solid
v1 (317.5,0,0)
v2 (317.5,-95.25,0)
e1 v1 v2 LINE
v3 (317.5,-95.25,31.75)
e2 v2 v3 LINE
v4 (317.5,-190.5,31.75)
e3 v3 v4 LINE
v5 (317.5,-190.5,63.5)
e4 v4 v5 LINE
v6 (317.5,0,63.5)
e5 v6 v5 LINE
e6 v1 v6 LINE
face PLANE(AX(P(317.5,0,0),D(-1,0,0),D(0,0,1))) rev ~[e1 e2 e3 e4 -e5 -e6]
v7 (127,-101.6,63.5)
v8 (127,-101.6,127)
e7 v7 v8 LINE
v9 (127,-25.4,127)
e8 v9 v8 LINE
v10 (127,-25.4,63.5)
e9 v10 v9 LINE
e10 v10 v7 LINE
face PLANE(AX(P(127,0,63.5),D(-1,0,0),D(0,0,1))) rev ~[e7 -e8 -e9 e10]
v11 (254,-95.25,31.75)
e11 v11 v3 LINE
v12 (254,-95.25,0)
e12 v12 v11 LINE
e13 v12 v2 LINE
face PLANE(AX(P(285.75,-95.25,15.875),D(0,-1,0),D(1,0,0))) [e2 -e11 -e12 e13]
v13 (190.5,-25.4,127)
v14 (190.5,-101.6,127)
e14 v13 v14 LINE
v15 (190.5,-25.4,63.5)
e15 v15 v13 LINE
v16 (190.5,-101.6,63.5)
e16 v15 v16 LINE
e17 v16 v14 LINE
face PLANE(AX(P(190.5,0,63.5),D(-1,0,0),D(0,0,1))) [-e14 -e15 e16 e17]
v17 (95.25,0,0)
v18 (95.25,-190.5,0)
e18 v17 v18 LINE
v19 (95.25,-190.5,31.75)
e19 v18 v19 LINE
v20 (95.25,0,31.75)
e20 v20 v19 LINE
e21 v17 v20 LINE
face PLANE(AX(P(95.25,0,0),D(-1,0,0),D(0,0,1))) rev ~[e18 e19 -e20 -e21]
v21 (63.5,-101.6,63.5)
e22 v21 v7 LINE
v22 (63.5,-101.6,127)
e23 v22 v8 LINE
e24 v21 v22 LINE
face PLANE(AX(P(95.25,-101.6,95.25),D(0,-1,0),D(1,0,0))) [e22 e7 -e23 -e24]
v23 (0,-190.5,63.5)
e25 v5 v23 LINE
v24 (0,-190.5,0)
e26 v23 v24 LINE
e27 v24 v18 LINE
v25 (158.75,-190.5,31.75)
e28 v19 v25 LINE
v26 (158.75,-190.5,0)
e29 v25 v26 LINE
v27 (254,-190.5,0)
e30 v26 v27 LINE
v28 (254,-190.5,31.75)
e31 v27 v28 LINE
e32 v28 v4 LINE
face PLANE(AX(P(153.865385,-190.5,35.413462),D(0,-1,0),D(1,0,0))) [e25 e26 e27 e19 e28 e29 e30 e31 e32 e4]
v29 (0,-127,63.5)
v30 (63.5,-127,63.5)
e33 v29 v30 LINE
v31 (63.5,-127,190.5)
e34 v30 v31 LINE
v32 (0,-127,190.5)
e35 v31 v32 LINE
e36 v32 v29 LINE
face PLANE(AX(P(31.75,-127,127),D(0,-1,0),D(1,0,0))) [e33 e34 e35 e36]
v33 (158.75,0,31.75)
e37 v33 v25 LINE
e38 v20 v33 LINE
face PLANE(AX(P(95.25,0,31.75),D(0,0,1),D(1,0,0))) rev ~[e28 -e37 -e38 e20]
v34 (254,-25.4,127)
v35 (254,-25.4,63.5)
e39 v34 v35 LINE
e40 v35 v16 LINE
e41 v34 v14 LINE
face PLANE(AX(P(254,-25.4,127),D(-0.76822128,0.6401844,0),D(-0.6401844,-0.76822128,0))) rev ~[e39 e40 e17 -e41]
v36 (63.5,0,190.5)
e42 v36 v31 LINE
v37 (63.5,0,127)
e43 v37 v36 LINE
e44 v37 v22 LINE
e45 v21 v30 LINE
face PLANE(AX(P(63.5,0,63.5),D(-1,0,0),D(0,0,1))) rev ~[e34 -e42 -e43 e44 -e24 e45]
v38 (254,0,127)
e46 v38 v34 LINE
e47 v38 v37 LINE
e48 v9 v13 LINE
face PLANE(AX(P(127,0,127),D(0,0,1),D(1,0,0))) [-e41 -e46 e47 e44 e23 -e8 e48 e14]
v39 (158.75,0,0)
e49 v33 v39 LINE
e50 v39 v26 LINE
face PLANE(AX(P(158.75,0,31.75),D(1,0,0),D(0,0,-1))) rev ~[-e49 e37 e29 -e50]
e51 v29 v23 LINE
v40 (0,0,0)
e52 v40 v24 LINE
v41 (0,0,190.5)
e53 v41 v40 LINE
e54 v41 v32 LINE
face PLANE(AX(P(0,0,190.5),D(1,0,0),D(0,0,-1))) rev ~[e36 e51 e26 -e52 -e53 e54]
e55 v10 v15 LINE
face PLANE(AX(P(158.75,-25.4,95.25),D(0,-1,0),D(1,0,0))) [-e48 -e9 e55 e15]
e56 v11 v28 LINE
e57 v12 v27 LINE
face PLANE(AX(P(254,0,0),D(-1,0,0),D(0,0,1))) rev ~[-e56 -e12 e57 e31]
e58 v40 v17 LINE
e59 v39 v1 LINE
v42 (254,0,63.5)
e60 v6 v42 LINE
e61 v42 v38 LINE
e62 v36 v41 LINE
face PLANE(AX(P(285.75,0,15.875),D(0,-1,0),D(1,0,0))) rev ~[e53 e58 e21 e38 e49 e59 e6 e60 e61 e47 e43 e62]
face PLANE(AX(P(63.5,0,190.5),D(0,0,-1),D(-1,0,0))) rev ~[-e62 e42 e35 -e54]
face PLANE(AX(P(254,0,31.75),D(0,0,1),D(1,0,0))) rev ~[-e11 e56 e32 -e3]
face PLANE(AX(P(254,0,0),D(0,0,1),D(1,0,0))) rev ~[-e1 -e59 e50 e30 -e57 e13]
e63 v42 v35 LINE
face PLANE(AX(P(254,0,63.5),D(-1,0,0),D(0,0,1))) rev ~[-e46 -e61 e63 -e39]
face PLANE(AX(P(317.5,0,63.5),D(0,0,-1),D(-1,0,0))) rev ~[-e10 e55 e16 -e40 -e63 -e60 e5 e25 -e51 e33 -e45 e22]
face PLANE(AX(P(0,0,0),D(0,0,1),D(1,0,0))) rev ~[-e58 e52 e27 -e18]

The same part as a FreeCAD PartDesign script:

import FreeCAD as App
import Part
import Sketcher
from FreeCAD import Vector
Q = App.Units.Quantity

doc = App.newDocument("Part")
body = doc.addObject("PartDesign::Body", "Body")

# Sketch on XZ plane
sketch1 = body.newObject("Sketcher::SketchObject", "Sketch")
sketch1.AttachmentSupport = (doc.getObject("XZ_Plane"), [""])
sketch1.MapMode = "FlatFace"
sketch1.addGeometry(Part.LineSegment(Vector(0, 64, 0), Vector(0, 0, 0)), False)
sketch1.addGeometry(Part.LineSegment(Vector(0, 0, 0), Vector(95, 0, 0)), False)
sketch1.addGeometry(Part.LineSegment(Vector(95, 0, 0), Vector(95, 32, 0)), False)
sketch1.addGeometry(Part.LineSegment(Vector(95, 32, 0), Vector(159, 32, 0)), False)
sketch1.addGeometry(Part.LineSegment(Vector(159, 32, 0), Vector(159, 0, 0)), False)
sketch1.addGeometry(Part.LineSegment(Vector(159, 0, 0), Vector(254, 0, 0)), False)
sketch1.addGeometry(Part.LineSegment(Vector(254, 0, 0), Vector(254, 32, 0)), False)
sketch1.addGeometry(Part.LineSegment(Vector(254, 32, 0), Vector(318, 32, 0)), False)
sketch1.addGeometry(Part.LineSegment(Vector(318, 32, 0), Vector(318, 64, 0)), False)
sketch1.addGeometry(Part.LineSegment(Vector(318, 64, 0), Vector(0, 64, 0)), False)
sketch1.addConstraint(Sketcher.Constraint("Coincident", 0, 2, 1, 1))
sketch1.addConstraint(Sketcher.Constraint("Coincident", 1, 2, 2, 1))
sketch1.addConstraint(Sketcher.Constraint("Coincident", 2, 2, 3, 1))
sketch1.addConstraint(Sketcher.Constraint("Coincident", 3, 2, 4, 1))
sketch1.addConstraint(Sketcher.Constraint("Coincident", 4, 2, 5, 1))
sketch1.addConstraint(Sketcher.Constraint("Coincident", 5, 2, 6, 1))
sketch1.addConstraint(Sketcher.Constraint("Coincident", 6, 2, 7, 1))
sketch1.addConstraint(Sketcher.Constraint("Coincident", 7, 2, 8, 1))
sketch1.addConstraint(Sketcher.Constraint("Coincident", 8, 2, 9, 1))
sketch1.addConstraint(Sketcher.Constraint("Coincident", 9, 2, 0, 1))
sketch1.addConstraint(Sketcher.Constraint("Vertical", 0))
sketch1.addConstraint(Sketcher.Constraint("Horizontal", 1))
sketch1.addConstraint(Sketcher.Constraint("Vertical", 2))
sketch1.addConstraint(Sketcher.Constraint("Horizontal", 3))
sketch1.addConstraint(Sketcher.Constraint("Vertical", 4))
sketch1.addConstraint(Sketcher.Constraint("Horizontal", 5))
sketch1.addConstraint(Sketcher.Constraint("Vertical", 6))
sketch1.addConstraint(Sketcher.Constraint("Horizontal", 7))
sketch1.addConstraint(Sketcher.Constraint("Vertical", 8))
sketch1.addConstraint(Sketcher.Constraint("Horizontal", 9))
sketch1.addConstraint(Sketcher.Constraint("Coincident", 0, 2, -1, 1))
sketch1.addConstraint(Sketcher.Constraint("PointOnObject", 4, 2, -1))
sketch1.addConstraint(Sketcher.Constraint("Horizontal", 3, 2, 6, 2))
sketch1.addConstraint(Sketcher.Constraint("Equal", 1, 5))
sketch1.addConstraint(Sketcher.Constraint("Equal", 3, 7))
sketch1.addConstraint(Sketcher.Constraint("Equal", 7, 0))
sketch1.addConstraint(Sketcher.Constraint("Equal", 6, 8))
sketch1.addConstraint(Sketcher.Constraint("DistanceX", 3, 1, 3, 2, Q("2.5 in")))
sketch1.addConstraint(Sketcher.Constraint("DistanceX", 9, 2, 9, 1, Q("12.5 in")))
pad1 = body.newObject("PartDesign::Pad", "Pad")
pad1.Profile = sketch1
pad1.Length = Q("7.5 in")

# Sketch on XZ plane
sketch2 = body.newObject("Sketcher::SketchObject", "Sketch001")
sketch2.AttachmentSupport = (doc.getObject("XZ_Plane"), [""])
sketch2.MapMode = "FlatFace"
sketch2.addGeometry(Part.LineSegment(Vector(0, 190, 0), Vector(0, 64, 0)), False)
sketch2.addGeometry(Part.LineSegment(Vector(0, 64, 0), Vector(64, 64, 0)), False)
sketch2.addGeometry(Part.LineSegment(Vector(64, 64, 0), Vector(64, 190, 0)), False)
sketch2.addGeometry(Part.LineSegment(Vector(64, 190, 0), Vector(0, 190, 0)), False)
sketch2.addConstraint(Sketcher.Constraint("Coincident", 0, 2, 1, 1))
sketch2.addConstraint(Sketcher.Constraint("Coincident", 1, 2, 2, 1))
sketch2.addConstraint(Sketcher.Constraint("Coincident", 2, 2, 3, 1))
sketch2.addConstraint(Sketcher.Constraint("Coincident", 3, 2, 0, 1))
sketch2.addConstraint(Sketcher.Constraint("Vertical", 0))
sketch2.addConstraint(Sketcher.Constraint("Horizontal", 1))
sketch2.addConstraint(Sketcher.Constraint("Vertical", 2))
sketch2.addConstraint(Sketcher.Constraint("Horizontal", 3))
sketch2.addConstraint(Sketcher.Constraint("PointOnObject", 0, 2, -2))
sketch2.addConstraint(Sketcher.Constraint("DistanceY", 0, 2, 0, 1, Q("5 in")))
sketch2.addConstraint(Sketcher.Constraint("DistanceX", 1, 1, 1, 2, Q("2.5 in")))
sketch2.addConstraint(Sketcher.Constraint("DistanceY", -1, 1, 0, 2, Q("2.5 in")))
pad2 = body.newObject("PartDesign::Pad", "Pad001")
pad2.Profile = sketch2
pad2.Length = Q("5 in")

# Sketch on XZ plane
sketch3 = body.newObject("Sketcher::SketchObject", "Sketch002")
sketch3.AttachmentSupport = (doc.getObject("XZ_Plane"), [""])
sketch3.MapMode = "FlatFace"
sketch3.addGeometry(Part.LineSegment(Vector(64, 127, 0), Vector(64, 64, 0)), False)
sketch3.addGeometry(Part.LineSegment(Vector(64, 64, 0), Vector(127, 64, 0)), False)
sketch3.addGeometry(Part.LineSegment(Vector(127, 64, 0), Vector(127, 127, 0)), False)
sketch3.addGeometry(Part.LineSegment(Vector(127, 127, 0), Vector(64, 127, 0)), False)
sketch3.addGeometry(Part.LineSegment(Vector(190, 127, 0), Vector(190, 64, 0)), False)
sketch3.addGeometry(Part.LineSegment(Vector(190, 64, 0), Vector(254, 64, 0)), False)
sketch3.addGeometry(Part.LineSegment(Vector(254, 64, 0), Vector(254, 127, 0)), False)
sketch3.addGeometry(Part.LineSegment(Vector(254, 127, 0), Vector(190, 127, 0)), False)
sketch3.addConstraint(Sketcher.Constraint("Coincident", 0, 2, 1, 1))
sketch3.addConstraint(Sketcher.Constraint("Coincident", 1, 2, 2, 1))
sketch3.addConstraint(Sketcher.Constraint("Coincident", 2, 2, 3, 1))
sketch3.addConstraint(Sketcher.Constraint("Coincident", 3, 2, 0, 1))
sketch3.addConstraint(Sketcher.Constraint("Coincident", 4, 2, 5, 1))
sketch3.addConstraint(Sketcher.Constraint("Coincident", 5, 2, 6, 1))
sketch3.addConstraint(Sketcher.Constraint("Coincident", 6, 2, 7, 1))
sketch3.addConstraint(Sketcher.Constraint("Coincident", 7, 2, 4, 1))
sketch3.addConstraint(Sketcher.Constraint("Vertical", 0))
sketch3.addConstraint(Sketcher.Constraint("Horizontal", 1))
sketch3.addConstraint(Sketcher.Constraint("Vertical", 2))
sketch3.addConstraint(Sketcher.Constraint("Horizontal", 3))
sketch3.addConstraint(Sketcher.Constraint("Vertical", 4))
sketch3.addConstraint(Sketcher.Constraint("Horizontal", 5))
sketch3.addConstraint(Sketcher.Constraint("Vertical", 6))
sketch3.addConstraint(Sketcher.Constraint("Horizontal", 7))
sketch3.addConstraint(Sketcher.Constraint("Horizontal", 1, 2, 4, 2))
sketch3.addConstraint(Sketcher.Constraint("Horizontal", 3, 2, 6, 2))
sketch3.addConstraint(Sketcher.Constraint("Equal", 3, 5))
sketch3.addConstraint(Sketcher.Constraint("Equal", 7, 0))
sketch3.addConstraint(Sketcher.Constraint("DistanceX", 1, 1, 1, 2, Q("2.5 in")))
sketch3.addConstraint(Sketcher.Constraint("DistanceX", -1, 1, 1, 2, Q("5 in")))
sketch3.addConstraint(Sketcher.Constraint("DistanceY", -1, 1, 2, 2, Q("5 in")))
sketch3.addConstraint(Sketcher.Constraint("DistanceX", -1, 1, 5, 2, Q("10 in")))
pad3 = body.newObject("PartDesign::Pad", "Pad002")
pad3.Profile = sketch3
pad3.Length = Q("4 in")

# Sketch on XZ plane
sketch4 = body.newObject("Sketcher::SketchObject", "Sketch003")
sketch4.AttachmentSupport = (doc.getObject("XZ_Plane"), [""])
sketch4.MapMode = "FlatFace"
sketch4.addGeometry(Part.LineSegment(Vector(127, 127, 0), Vector(127, 64, 0)), False)
sketch4.addGeometry(Part.LineSegment(Vector(127, 64, 0), Vector(190, 64, 0)), False)
sketch4.addGeometry(Part.LineSegment(Vector(190, 64, 0), Vector(190, 127, 0)), False)
sketch4.addGeometry(Part.LineSegment(Vector(190, 127, 0), Vector(127, 127, 0)), False)
sketch4.addConstraint(Sketcher.Constraint("Coincident", 0, 2, 1, 1))
sketch4.addConstraint(Sketcher.Constraint("Coincident", 1, 2, 2, 1))
sketch4.addConstraint(Sketcher.Constraint("Coincident", 2, 2, 3, 1))
sketch4.addConstraint(Sketcher.Constraint("Coincident", 3, 2, 0, 1))
sketch4.addConstraint(Sketcher.Constraint("Vertical", 0))
sketch4.addConstraint(Sketcher.Constraint("Horizontal", 1))
sketch4.addConstraint(Sketcher.Constraint("Vertical", 2))
sketch4.addConstraint(Sketcher.Constraint("Horizontal", 3))
sketch4.addConstraint(Sketcher.Constraint("Equal", 3, 0))
sketch4.addConstraint(Sketcher.Constraint("DistanceX", 1, 1, 1, 2, Q("2.5 in")))
sketch4.addConstraint(Sketcher.Constraint("DistanceX", -1, 1, 0, 2, Q("5 in")))
sketch4.addConstraint(Sketcher.Constraint("DistanceY", -1, 1, 2, 2, Q("5 in")))
pad4 = body.newObject("PartDesign::Pad", "Pad003")
pad4.Profile = sketch4
pad4.Length = Q("1 in")

# Sketch on XY plane
sketch5 = body.newObject("Sketcher::SketchObject", "Sketch004")
sketch5.AttachmentSupport = (doc.getObject("XY_Plane"), [""])
sketch5.MapMode = "FlatFace"
sketch5.AttachmentOffset = App.Placement(Vector(0, 0, 5 * 25.4), App.Rotation())
sketch5.addGeometry(Part.LineSegment(Vector(254, -25, 0), Vector(190, -102, 0)), False)
sketch5.addGeometry(Part.LineSegment(Vector(190, -102, 0), Vector(254, -102, 0)), False)
sketch5.addGeometry(Part.LineSegment(Vector(254, -102, 0), Vector(254, -25, 0)), False)
sketch5.addConstraint(Sketcher.Constraint("Coincident", 0, 2, 1, 1))
sketch5.addConstraint(Sketcher.Constraint("Coincident", 1, 2, 2, 1))
sketch5.addConstraint(Sketcher.Constraint("Coincident", 2, 2, 0, 1))
sketch5.addConstraint(Sketcher.Constraint("Horizontal", 1))
sketch5.addConstraint(Sketcher.Constraint("Vertical", 2))
sketch5.addConstraint(Sketcher.Constraint("DistanceY", 2, 1, 2, 2, Q("3 in")))
sketch5.addConstraint(Sketcher.Constraint("DistanceX", 1, 1, 1, 2, Q("2.5 in")))
sketch5.addConstraint(Sketcher.Constraint("DistanceY", 0, 2, -1, 1, Q("4 in")))
sketch5.addConstraint(Sketcher.Constraint("DistanceX", -1, 1, 1, 2, Q("10 in")))
pocket1 = body.newObject("PartDesign::Pocket", "Pocket")
pocket1.Profile = sketch5
pocket1.Length = Q("2.5 in")

# Sketch on XZ plane
sketch6 = body.newObject("Sketcher::SketchObject", "Sketch005")
sketch6.AttachmentSupport = (doc.getObject("XZ_Plane"), [""])
sketch6.MapMode = "FlatFace"
sketch6.addGeometry(Part.LineSegment(Vector(254, 32, 0), Vector(254, 0, 0)), False)
sketch6.addGeometry(Part.LineSegment(Vector(254, 0, 0), Vector(318, 0, 0)), False)
sketch6.addGeometry(Part.LineSegment(Vector(318, 0, 0), Vector(318, 32, 0)), False)
sketch6.addGeometry(Part.LineSegment(Vector(318, 32, 0), Vector(254, 32, 0)), False)
sketch6.addConstraint(Sketcher.Constraint("Coincident", 0, 2, 1, 1))
sketch6.addConstraint(Sketcher.Constraint("Coincident", 1, 2, 2, 1))
sketch6.addConstraint(Sketcher.Constraint("Coincident", 2, 2, 3, 1))
sketch6.addConstraint(Sketcher.Constraint("Coincident", 3, 2, 0, 1))
sketch6.addConstraint(Sketcher.Constraint("Vertical", 0))
sketch6.addConstraint(Sketcher.Constraint("Horizontal", 1))
sketch6.addConstraint(Sketcher.Constraint("Vertical", 2))
sketch6.addConstraint(Sketcher.Constraint("Horizontal", 3))
sketch6.addConstraint(Sketcher.Constraint("PointOnObject", 0, 2, -1))
sketch6.addConstraint(Sketcher.Constraint("DistanceX", 1, 1, 1, 2, Q("2.5 in")))
sketch6.addConstraint(Sketcher.Constraint("DistanceX", -1, 1, 0, 2, Q("10 in")))
sketch6.addConstraint(Sketcher.Constraint("DistanceY", 0, 2, 0, 1, Q("1.25 in")))
pad5 = body.newObject("PartDesign::Pad", "Pad004")
pad5.Profile = sketch6
pad5.Length = Q("3.75 in")

doc.recompute()
